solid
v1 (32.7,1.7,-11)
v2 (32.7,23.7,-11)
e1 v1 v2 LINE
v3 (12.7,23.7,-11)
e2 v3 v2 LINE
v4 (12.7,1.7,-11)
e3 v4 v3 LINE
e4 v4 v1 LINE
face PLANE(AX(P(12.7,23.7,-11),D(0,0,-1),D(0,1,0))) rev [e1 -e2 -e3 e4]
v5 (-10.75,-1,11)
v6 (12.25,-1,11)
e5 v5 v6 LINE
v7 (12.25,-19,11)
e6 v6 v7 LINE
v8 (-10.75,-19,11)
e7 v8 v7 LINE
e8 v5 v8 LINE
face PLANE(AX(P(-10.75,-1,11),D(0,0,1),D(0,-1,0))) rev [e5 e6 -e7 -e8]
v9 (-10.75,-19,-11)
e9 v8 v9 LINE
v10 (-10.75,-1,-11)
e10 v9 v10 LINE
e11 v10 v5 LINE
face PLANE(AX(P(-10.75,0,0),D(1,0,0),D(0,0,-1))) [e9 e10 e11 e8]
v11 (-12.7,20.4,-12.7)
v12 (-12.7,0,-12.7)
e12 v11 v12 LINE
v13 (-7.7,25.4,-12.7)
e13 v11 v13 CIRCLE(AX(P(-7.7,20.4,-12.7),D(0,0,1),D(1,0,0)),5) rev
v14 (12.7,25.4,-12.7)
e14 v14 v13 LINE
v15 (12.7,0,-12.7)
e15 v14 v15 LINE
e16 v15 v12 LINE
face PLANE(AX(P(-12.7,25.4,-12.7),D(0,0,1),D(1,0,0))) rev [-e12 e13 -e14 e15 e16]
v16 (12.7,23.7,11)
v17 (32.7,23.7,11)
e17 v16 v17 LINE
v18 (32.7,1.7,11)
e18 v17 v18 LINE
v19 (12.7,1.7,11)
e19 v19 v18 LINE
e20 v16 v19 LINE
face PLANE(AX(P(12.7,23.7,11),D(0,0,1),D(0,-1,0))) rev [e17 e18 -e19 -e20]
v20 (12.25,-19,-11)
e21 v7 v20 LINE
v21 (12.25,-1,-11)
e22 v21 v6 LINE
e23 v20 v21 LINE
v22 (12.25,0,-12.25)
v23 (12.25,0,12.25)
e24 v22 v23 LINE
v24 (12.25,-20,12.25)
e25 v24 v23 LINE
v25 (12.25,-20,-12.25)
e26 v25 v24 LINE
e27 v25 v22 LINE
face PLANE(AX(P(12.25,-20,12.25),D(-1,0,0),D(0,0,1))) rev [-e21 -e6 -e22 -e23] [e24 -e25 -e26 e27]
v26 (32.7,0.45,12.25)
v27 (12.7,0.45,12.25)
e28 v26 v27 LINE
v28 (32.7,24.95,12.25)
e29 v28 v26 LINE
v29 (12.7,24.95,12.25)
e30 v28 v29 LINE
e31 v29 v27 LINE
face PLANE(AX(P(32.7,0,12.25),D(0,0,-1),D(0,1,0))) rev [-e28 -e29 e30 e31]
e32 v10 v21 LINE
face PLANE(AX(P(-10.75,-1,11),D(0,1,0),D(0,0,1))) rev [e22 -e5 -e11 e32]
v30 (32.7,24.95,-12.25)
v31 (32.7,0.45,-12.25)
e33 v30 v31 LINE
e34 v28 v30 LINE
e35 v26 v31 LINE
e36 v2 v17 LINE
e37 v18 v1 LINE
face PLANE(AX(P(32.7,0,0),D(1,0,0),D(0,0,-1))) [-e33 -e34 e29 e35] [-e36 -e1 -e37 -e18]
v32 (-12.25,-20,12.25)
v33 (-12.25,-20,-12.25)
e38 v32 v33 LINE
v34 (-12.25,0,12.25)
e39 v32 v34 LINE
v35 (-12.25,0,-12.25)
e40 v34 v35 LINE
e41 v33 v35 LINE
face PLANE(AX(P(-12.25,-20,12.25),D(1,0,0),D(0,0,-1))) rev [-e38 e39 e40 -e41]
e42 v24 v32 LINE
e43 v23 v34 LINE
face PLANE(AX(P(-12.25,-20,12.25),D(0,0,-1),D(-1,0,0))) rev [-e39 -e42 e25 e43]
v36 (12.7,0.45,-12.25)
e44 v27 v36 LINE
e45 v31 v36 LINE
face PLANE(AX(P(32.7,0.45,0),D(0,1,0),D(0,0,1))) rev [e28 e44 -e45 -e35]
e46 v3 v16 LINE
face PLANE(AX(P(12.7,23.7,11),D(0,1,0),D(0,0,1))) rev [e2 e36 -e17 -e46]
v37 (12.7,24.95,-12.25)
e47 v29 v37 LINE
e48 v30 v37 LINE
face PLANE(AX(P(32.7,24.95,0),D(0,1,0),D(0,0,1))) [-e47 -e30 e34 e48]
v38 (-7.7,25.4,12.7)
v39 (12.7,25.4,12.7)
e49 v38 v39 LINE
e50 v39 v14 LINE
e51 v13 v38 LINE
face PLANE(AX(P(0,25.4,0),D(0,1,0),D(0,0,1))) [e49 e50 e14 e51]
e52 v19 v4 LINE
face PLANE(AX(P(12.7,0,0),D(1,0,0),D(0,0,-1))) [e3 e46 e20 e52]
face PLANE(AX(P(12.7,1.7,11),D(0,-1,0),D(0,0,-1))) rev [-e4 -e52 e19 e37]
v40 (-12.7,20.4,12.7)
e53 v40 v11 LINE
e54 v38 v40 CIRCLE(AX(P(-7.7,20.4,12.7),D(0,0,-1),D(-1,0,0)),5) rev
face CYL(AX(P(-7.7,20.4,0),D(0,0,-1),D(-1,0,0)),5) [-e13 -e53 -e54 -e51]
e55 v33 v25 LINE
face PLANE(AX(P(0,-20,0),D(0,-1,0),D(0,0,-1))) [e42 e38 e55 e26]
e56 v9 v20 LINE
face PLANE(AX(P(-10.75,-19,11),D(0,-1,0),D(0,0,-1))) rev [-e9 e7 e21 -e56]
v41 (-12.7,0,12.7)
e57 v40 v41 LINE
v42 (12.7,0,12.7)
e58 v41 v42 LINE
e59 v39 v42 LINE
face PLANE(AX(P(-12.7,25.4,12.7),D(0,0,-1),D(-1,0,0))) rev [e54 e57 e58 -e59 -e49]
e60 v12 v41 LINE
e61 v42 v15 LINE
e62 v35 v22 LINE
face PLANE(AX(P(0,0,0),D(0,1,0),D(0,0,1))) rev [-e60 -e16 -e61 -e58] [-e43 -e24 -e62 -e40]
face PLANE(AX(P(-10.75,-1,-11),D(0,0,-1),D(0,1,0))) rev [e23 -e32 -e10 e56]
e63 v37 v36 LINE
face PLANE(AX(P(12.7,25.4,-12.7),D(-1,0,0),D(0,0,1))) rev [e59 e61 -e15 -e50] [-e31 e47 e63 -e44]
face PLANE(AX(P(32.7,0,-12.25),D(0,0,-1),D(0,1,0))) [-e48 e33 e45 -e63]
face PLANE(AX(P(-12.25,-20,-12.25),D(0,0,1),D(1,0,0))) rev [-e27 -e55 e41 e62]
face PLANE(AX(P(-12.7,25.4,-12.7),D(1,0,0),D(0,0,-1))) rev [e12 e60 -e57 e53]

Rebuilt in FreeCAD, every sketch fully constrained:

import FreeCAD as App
import Part
import Sketcher

V = App.Vector
Q = App.Units.Quantity


def edges_at(feature, points):
    """Names of the edges that pass closest to the given points."""
    edges = feature.Shape.Edges
    near = lambda p: min(range(len(edges)), key=lambda i: edges[i].distToShape(Part.Vertex(*p))[0])
    return sorted({f"Edge{near(p) + 1}" for p in points})


def add_polygon(sketch, points):
    """Adds a closed chain of lines whose ends are joined by coincident constraints."""
    first, n = sketch.GeometryCount, len(points)
    for a, b in zip(points, points[1:] + points[:1]):
        sketch.addGeometry(Part.LineSegment(App.Vector(*a, 0), App.Vector(*b, 0)), False)
    for i in range(n):
        sketch.addConstraint(Sketcher.Constraint("Coincident", first + i, 2, first + (i + 1) % n, 1))

doc = App.newDocument("Part")
body = doc.addObject("PartDesign::Body", "Body")

# Sketch on XZ plane
sketch1 = body.newObject("Sketcher::SketchObject", "Sketch")
sketch1.AttachmentSupport = (doc.getObject("XZ_Plane"), [""])
sketch1.MapMode = "FlatFace"
add_polygon(sketch1, [(-12.7, -12.7), (-12.7, 12.7), (12.7, 12.7), (12.7, -12.7)])  # lines 0-3
sketch1.addConstraint(Sketcher.Constraint("Vertical", 0))
sketch1.addConstraint(Sketcher.Constraint("Horizontal", 1))
sketch1.addConstraint(Sketcher.Constraint("Vertical", 2))
sketch1.addConstraint(Sketcher.Constraint("Horizontal", 3))
sketch1.addConstraint(Sketcher.Constraint("Symmetric", 0, 2, 2, 2, -1, 1))
sketch1.addConstraint(Sketcher.Constraint("Equal", 3, 0))
sketch1.addConstraint(Sketcher.Constraint("DistanceX", 1, 1, 1, 2, Q("25.4 mm")))
pad1 = body.newObject("PartDesign::Pad", "Pad")
pad1.Profile = sketch1
pad1.Length = 25.4
pad1.Reversed = True
doc.recompute()

fillet = body.newObject("PartDesign::Fillet", "Fillet")
fillet.Base = (pad1, edges_at(pad1, [(-12.7, 25.4, 0)]))
fillet.Radius = 5

# Sketch on YZ plane
sketch2 = body.newObject("Sketcher::SketchObject", "Sketch001")
sketch2.AttachmentSupport = (doc.getObject("YZ_Plane"), [""])
sketch2.MapMode = "FlatFace"
sketch2.AttachmentOffset = App.Placement(V(0, 0, 12.7), App.Rotation())
add_polygon(sketch2, [(24.95, 12.25), (0.45, 12.25), (0.45, -12.25), (24.95, -12.25)])  # lines 0-3
sketch2.addConstraint(Sketcher.Constraint("Horizontal", 0))
sketch2.addConstraint(Sketcher.Constraint("Vertical", 1))
sketch2.addConstraint(Sketcher.Constraint("Horizontal", 2))
sketch2.addConstraint(Sketcher.Constraint("Vertical", 3))
sketch2.addConstraint(Sketcher.Constraint("Equal", 2, 1))
sketch2.addConstraint(Sketcher.Constraint("DistanceX", 0, 2, 0, 1, Q("24.5 mm")))
sketch2.addConstraint(Sketcher.Constraint("DistanceX", -1, 1, 0, 2, Q("0.45 mm")))
sketch2.addConstraint(Sketcher.Constraint("DistanceY", -1, 1, 0, 2, Q("12.25 mm")))
pad2 = body.newObject("PartDesign::Pad", "Pad001")
pad2.Profile = sketch2
pad2.Length = 20

# Sketch on YZ plane
sketch3 = body.newObject("Sketcher::SketchObject", "Sketch002")
sketch3.AttachmentSupport = (doc.getObject("YZ_Plane"), [""])
sketch3.MapMode = "FlatFace"
sketch3.AttachmentOffset = App.Placement(V(0, 0, 32.7), App.Rotation())
add_polygon(sketch3, [(23.7, 11), (1.7, 11), (1.7, -11), (23.7, -11)])  # lines 0-3
sketch3.addConstraint(Sketcher.Constraint("Horizontal", 0))
sketch3.addConstraint(Sketcher.Constraint("Vertical", 1))
sketch3.addConstraint(Sketcher.Constraint("Horizontal", 2))
sketch3.addConstraint(Sketcher.Constraint("Vertical", 3))
sketch3.addConstraint(Sketcher.Constraint("Equal", 2, 1))
sketch3.addConstraint(Sketcher.Constraint("DistanceX", 0, 2, 0, 1, Q("22 mm")))
sketch3.addConstraint(Sketcher.Constraint("DistanceY", -1, 1, 0, 2, Q("11 mm")))
sketch3.addConstraint(Sketcher.Constraint("DistanceX", -1, 1, 0, 2, Q("1.7 mm")))
pocket1 = body.newObject("PartDesign::Pocket", "Pocket")
pocket1.Profile = sketch3
pocket1.Length = 20

# Sketch on XZ plane
sketch4 = body.newObject("Sketcher::SketchObject", "Sketch003")
sketch4.AttachmentSupport = (doc.getObject("XZ_Plane"), [""])
sketch4.MapMode = "FlatFace"
add_polygon(sketch4, [(-12.25, 12.25), (-12.25, -12.25), (12.25, -12.25), (12.25, 12.25)])  # lines 0-3
sketch4.addConstraint(Sketcher.Constraint("Vertical", 0))
sketch4.addConstraint(Sketcher.Constraint("Horizontal", 1))
sketch4.addConstraint(Sketcher.Constraint("Vertical", 2))
sketch4.addConstraint(Sketcher.Constraint("Horizontal", 3))
sketch4.addConstraint(Sketcher.Constraint("Symmetric", 0, 2, 2, 2, -1, 1))
sketch4.addConstraint(Sketcher.Constraint("Equal", 3, 0))
sketch4.addConstraint(Sketcher.Constraint("DistanceX", 1, 1, 1, 2, Q("24.5 mm")))
pad3 = body.newObject("PartDesign::Pad", "Pad002")
pad3.Profile = sketch4
pad3.Length = 20

# Sketch on YZ plane
sketch5 = body.newObject("Sketcher::SketchObject", "Sketch004")
sketch5.AttachmentSupport = (doc.getObject("YZ_Plane"), [""])
sketch5.MapMode = "FlatFace"
sketch5.AttachmentOffset = App.Placement(V(0, 0, 12.25), App.Rotation())
add_polygon(sketch5, [(-1, 11), (-19, 11), (-19, -11), (-1, -11)])  # lines 0-3
sketch5.addConstraint(Sketcher.Constraint("Horizontal", 0))
sketch5.addConstraint(Sketcher.Constraint("Vertical", 1))
sketch5.addConstraint(Sketcher.Constraint("Horizontal", 2))
sketch5.addConstraint(Sketcher.Constraint("Vertical", 3))
sketch5.addConstraint(Sketcher.Constraint("DistanceX", 0, 2, 0, 1, Q("18 mm")))
sketch5.addConstraint(Sketcher.Constraint("DistanceY", 1, 2, 1, 1, Q("22 mm")))
sketch5.addConstraint(Sketcher.Constraint("DistanceX", 0, 2, -1, 1, Q("19 mm")))
sketch5.addConstraint(Sketcher.Constraint("DistanceY", -1, 1, 0, 2, Q("11 mm")))
pocket2 = body.newObject("PartDesign::Pocket", "Pocket001")
pocket2.Profile = sketch5
pocket2.Length = 23

doc.recompute()
